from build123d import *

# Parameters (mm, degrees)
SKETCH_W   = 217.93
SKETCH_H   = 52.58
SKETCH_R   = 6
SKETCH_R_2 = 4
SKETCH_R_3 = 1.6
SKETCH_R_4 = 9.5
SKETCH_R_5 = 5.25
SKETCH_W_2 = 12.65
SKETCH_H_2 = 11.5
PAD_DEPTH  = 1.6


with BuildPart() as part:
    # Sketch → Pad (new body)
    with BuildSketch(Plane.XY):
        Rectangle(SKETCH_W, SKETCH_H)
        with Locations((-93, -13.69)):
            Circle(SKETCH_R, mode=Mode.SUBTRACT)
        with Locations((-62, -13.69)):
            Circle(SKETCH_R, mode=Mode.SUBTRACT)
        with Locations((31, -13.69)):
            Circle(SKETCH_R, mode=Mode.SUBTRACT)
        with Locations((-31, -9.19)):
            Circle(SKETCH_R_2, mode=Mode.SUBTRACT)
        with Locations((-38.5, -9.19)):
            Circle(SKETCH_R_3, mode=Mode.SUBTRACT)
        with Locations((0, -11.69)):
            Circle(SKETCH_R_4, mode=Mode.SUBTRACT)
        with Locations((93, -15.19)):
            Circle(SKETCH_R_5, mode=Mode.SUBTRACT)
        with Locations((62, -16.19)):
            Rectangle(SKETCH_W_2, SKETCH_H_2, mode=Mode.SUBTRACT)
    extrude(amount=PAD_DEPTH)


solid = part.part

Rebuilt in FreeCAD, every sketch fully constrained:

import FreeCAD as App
import Part
import Sketcher
from FreeCAD import Vector


def add_polygon(sketch, points):
    """Adds a closed chain of lines whose ends are joined by coincident constraints."""
    first, n = sketch.GeometryCount, len(points)
    for a, b in zip(points, points[1:] + points[:1]):
        sketch.addGeometry(Part.LineSegment(App.Vector(*a, 0), App.Vector(*b, 0)), False)
    for i in range(n):
        sketch.addConstraint(Sketcher.Constraint("Coincident", first + i, 2, first + (i + 1) % n, 1))

doc = App.newDocument("Part")
params = doc.addObject("Spreadsheet::Sheet", "Params")
for row, (alias, value) in enumerate([
    ("sketch1_diameter", "12 mm"),
    ("sketch1_diameter2", "8 mm"),
    ("sketch1_diameter3", "19 mm"),
    ("sketch1_diameter4", "10.5 mm"),
    ("sketch1_diameter5", "3.2 mm"),
    ("pad1_length", "1.6 mm"),
], start=1):
    params.set(f"A{row}", alias)
    params.set(f"B{row}", "=" + value)
    params.setAlias(f"B{row}", alias)

body = doc.addObject("PartDesign::Body", "Body")

# Sketch on XY plane
sketch1 = body.newObject("Sketcher::SketchObject", "Sketch")
sketch1.AttachmentSupport = (doc.getObject("XY_Plane"), [""])
sketch1.MapMode = "FlatFace"
add_polygon(sketch1, [(-109, 26.3), (-109, -26.3), (109, -26.3), (109, 26.3)])  # lines 0-3
sketch1.addGeometry(Part.Circle(Vector(-93, -13.7, 0), Vector(0, 0, 1), 6), False)  # 4
sketch1.addGeometry(Part.Circle(Vector(-62, -13.7, 0), Vector(0, 0, 1), 6), False)  # 5
sketch1.addGeometry(Part.Circle(Vector(31, -13.7, 0), Vector(0, 0, 1), 6), False)  # 6
add_polygon(sketch1, [(68.3, -21.9), (55.7, -21.9), (55.7, -10.4), (68.3, -10.4)])  # lines 7-10
sketch1.addGeometry(Part.Circle(Vector(93, -15.2, 0), Vector(0, 0, 1), 5.2), False)  # 11
sketch1.addGeometry(Part.Circle(Vector(-38.5, -9.2, 0), Vector(0, 0, 1), 1.6), False)  # 12
sketch1.addGeometry(Part.Circle(Vector(-31, -9.2, 0), Vector(0, 0, 1), 4), False)  # 13
sketch1.addGeometry(Part.Circle(Vector(0, -11.7, 0), Vector(0, 0, 1), 9.5), False)  # 14
sketch1.addConstraint(Sketcher.Constraint("Vertical", 0))
sketch1.addConstraint(Sketcher.Constraint("Horizontal", 1))
sketch1.addConstraint(Sketcher.Constraint("Vertical", 2))
sketch1.addConstraint(Sketcher.Constraint("Horizontal", 3))
sketch1.addConstraint(Sketcher.Constraint("Horizontal", 7))
sketch1.addConstraint(Sketcher.Constraint("Vertical", 8))
sketch1.addConstraint(Sketcher.Constraint("Horizontal", 9))
sketch1.addConstraint(Sketcher.Constraint("Vertical", 10))
sketch1.addConstraint(Sketcher.Constraint("Equal", 4, 5))
sketch1.addConstraint(Sketcher.Constraint("Equal", 5, 6))
sketch1.addConstraint(Sketcher.Constraint("Symmetric", 0, 2, 2, 2, -1, 1))
sketch1.addConstraint(Sketcher.Constraint("PointOnObject", 14, 3, -2))
sketch1.addConstraint(Sketcher.Constraint("Horizontal", 4, 3, 5, 3))
sketch1.addConstraint(Sketcher.Constraint("Horizontal", 5, 3, 6, 3))
sketch1.addConstraint(Sketcher.Constraint("Horizontal", 12, 3, 13, 3))
sketch1.addConstraint(Sketcher.Constraint("Diameter", 4, 12.0))
sketch1.addConstraint(Sketcher.Constraint("Diameter", 13, 8.0))
sketch1.addConstraint(Sketcher.Constraint("Diameter", 14, 19.0))
sketch1.addConstraint(Sketcher.Constraint("Diameter", 11, 10.5))
sketch1.addConstraint(Sketcher.Constraint("Diameter", 12, 3.2))
sketch1.addConstraint(Sketcher.Constraint("DistanceY", 8, 1, 8, 2, 11.5))
sketch1.addConstraint(Sketcher.Constraint("DistanceX", 4, 3, -1, 1, 93.0))
sketch1.addConstraint(Sketcher.Constraint("DistanceX", 5, 3, -1, 1, 62.0))
sketch1.addConstraint(Sketcher.Constraint("DistanceX", -1, 1, 6, 3, 31.0))
sketch1.addConstraint(Sketcher.Constraint("DistanceX", -1, 1, 11, 3, 93.0))
sketch1.addConstraint(Sketcher.Constraint("DistanceX", 13, 3, -1, 1, 31.0))
sketch1.addConstraint(Sketcher.Constraint("DistanceY", 11, 3, 12, 3, 6.0))
sketch1.addConstraint(Sketcher.Constraint("DistanceY", 6, 3, 14, 3, 2.0))
sketch1.addConstraint(Sketcher.Constraint("DistanceX", 1, 1, 1, 2, 217.93))
sketch1.addConstraint(Sketcher.Constraint("DistanceX", 7, 2, 7, 1, 12.65))
sketch1.addConstraint(Sketcher.Constraint("DistanceY", 0, 2, 0, 1, 52.58))
sketch1.addConstraint(Sketcher.Constraint("DistanceX", 12, 3, -1, 1, 38.5))
sketch1.addConstraint(Sketcher.Constraint("DistanceY", 11, 3, 6, 3, 1.5))
sketch1.addConstraint(Sketcher.Constraint("DistanceY", 0, 2, 4, 3, 12.6))
sketch1.addConstraint(Sketcher.Constraint("DistanceY", 7, 2, -1, 1, 21.94))
sketch1.addConstraint(Sketcher.Constraint("DistanceX", 7, 2, 1, 2, 53.29))
sketch1.setExpression("Constraints[23]", "Params.sketch1_diameter")
sketch1.setExpression("Constraints[24]", "Params.sketch1_diameter2")
sketch1.setExpression("Constraints[25]", "Params.sketch1_diameter3")
sketch1.setExpression("Constraints[26]", "Params.sketch1_diameter4")
sketch1.setExpression("Constraints[27]", "Params.sketch1_diameter5")
pad1 = body.newObject("PartDesign::Pad", "Pad")
pad1.Profile = sketch1
pad1.setExpression("Length", "Params.pad1_length")

doc.recompute()
